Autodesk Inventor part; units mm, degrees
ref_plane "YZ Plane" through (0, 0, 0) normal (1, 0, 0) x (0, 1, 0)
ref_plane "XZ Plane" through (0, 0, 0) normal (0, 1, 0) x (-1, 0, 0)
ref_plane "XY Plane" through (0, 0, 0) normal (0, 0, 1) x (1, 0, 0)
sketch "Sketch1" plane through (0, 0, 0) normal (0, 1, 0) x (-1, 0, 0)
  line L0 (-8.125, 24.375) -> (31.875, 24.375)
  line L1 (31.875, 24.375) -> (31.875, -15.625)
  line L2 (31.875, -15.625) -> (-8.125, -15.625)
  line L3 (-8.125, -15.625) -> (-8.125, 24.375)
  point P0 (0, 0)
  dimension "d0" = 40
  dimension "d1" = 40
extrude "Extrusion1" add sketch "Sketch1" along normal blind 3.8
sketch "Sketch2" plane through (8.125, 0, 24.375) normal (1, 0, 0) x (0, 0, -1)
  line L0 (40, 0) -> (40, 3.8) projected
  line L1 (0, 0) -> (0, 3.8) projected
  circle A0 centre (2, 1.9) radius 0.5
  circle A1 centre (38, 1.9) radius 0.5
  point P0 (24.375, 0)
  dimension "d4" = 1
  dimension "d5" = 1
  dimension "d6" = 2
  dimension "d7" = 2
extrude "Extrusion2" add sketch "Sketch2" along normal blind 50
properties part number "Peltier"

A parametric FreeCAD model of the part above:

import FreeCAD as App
import Part
import Sketcher
Q = App.Units.Quantity

doc = App.newDocument("Part")
body = doc.addObject("PartDesign::Body", "Body")

# Sketch on XZ plane
sketch1 = body.newObject("Sketcher::SketchObject", "Sketch")
sketch1.AttachmentSupport = (doc.getObject("XZ_Plane"), [""])
sketch1.MapMode = "FlatFace"
sketch1.addGeometry(Part.LineSegment(App.Vector(-31.875, 24.375, 0), App.Vector(8.125, 24.375, 0)), False)
sketch1.addGeometry(Part.LineSegment(App.Vector(8.125, 24.375, 0), App.Vector(8.125, -15.625, 0)), False)
sketch1.addGeometry(Part.LineSegment(App.Vector(8.125, -15.625, 0), App.Vector(-31.875, -15.625, 0)), False)
sketch1.addGeometry(Part.LineSegment(App.Vector(-31.875, -15.625, 0), App.Vector(-31.875, 24.375, 0)), False)
sketch1.addConstraint(Sketcher.Constraint("Coincident", 0, 2, 1, 1))
sketch1.addConstraint(Sketcher.Constraint("Coincident", 1, 2, 2, 1))
sketch1.addConstraint(Sketcher.Constraint("Coincident", 2, 2, 3, 1))
sketch1.addConstraint(Sketcher.Constraint("Coincident", 3, 2, 0, 1))
sketch1.addConstraint(Sketcher.Constraint("Horizontal", 0))
sketch1.addConstraint(Sketcher.Constraint("Vertical", 1))
sketch1.addConstraint(Sketcher.Constraint("Horizontal", 2))
sketch1.addConstraint(Sketcher.Constraint("Vertical", 3))
sketch1.addConstraint(Sketcher.Constraint("Equal", 2, 1))
sketch1.addConstraint(Sketcher.Constraint("DistanceX", 0, 1, 0, 2, Q("40 mm")))
sketch1.addConstraint(Sketcher.Constraint("DistanceX", -1, 1, 0, 2, Q("8.125 mm")))
sketch1.addConstraint(Sketcher.Constraint("DistanceY", -1, 1, 0, 2, Q("24.375 mm")))
pad1 = body.newObject("PartDesign::Pad", "Pad")
pad1.Profile = sketch1
pad1.Length = 3.8
pad1.Reversed = True

# Sketch on YZ plane
sketch2 = body.newObject("Sketcher::SketchObject", "Sketch001")
sketch2.AttachmentSupport = (doc.getObject("YZ_Plane"), [""])
sketch2.MapMode = "FlatFace"
sketch2.AttachmentOffset = App.Placement(App.Vector(0, 0, 8.125), App.Rotation())
sketch2.addGeometry(Part.Circle(App.Vector(1.9, 22.375, 0), App.Vector(0, 0, 1), 0.5), False)
sketch2.addGeometry(Part.Circle(App.Vector(1.9, -13.625, 0), App.Vector(0, 0, 1), 0.5), False)
sketch2.addConstraint(Sketcher.Constraint("Equal", 0, 1))
sketch2.addConstraint(Sketcher.Constraint("Vertical", 0, 3, 1, 3))
sketch2.addConstraint(Sketcher.Constraint("Diameter", 0, Q("1 mm")))
sketch2.addConstraint(Sketcher.Constraint("DistanceY", 1, 3, 0, 3, Q("36 mm")))
sketch2.addConstraint(Sketcher.Constraint("DistanceX", -1, 1, 0, 3, Q("1.9 mm")))
sketch2.addConstraint(Sketcher.Constraint("DistanceY", -1, 1, 0, 3, Q("22.375 mm")))
pad2 = body.newObject("PartDesign::Pad", "Pad001")
pad2.Profile = sketch2
pad2.Length = 50

doc.recompute()
